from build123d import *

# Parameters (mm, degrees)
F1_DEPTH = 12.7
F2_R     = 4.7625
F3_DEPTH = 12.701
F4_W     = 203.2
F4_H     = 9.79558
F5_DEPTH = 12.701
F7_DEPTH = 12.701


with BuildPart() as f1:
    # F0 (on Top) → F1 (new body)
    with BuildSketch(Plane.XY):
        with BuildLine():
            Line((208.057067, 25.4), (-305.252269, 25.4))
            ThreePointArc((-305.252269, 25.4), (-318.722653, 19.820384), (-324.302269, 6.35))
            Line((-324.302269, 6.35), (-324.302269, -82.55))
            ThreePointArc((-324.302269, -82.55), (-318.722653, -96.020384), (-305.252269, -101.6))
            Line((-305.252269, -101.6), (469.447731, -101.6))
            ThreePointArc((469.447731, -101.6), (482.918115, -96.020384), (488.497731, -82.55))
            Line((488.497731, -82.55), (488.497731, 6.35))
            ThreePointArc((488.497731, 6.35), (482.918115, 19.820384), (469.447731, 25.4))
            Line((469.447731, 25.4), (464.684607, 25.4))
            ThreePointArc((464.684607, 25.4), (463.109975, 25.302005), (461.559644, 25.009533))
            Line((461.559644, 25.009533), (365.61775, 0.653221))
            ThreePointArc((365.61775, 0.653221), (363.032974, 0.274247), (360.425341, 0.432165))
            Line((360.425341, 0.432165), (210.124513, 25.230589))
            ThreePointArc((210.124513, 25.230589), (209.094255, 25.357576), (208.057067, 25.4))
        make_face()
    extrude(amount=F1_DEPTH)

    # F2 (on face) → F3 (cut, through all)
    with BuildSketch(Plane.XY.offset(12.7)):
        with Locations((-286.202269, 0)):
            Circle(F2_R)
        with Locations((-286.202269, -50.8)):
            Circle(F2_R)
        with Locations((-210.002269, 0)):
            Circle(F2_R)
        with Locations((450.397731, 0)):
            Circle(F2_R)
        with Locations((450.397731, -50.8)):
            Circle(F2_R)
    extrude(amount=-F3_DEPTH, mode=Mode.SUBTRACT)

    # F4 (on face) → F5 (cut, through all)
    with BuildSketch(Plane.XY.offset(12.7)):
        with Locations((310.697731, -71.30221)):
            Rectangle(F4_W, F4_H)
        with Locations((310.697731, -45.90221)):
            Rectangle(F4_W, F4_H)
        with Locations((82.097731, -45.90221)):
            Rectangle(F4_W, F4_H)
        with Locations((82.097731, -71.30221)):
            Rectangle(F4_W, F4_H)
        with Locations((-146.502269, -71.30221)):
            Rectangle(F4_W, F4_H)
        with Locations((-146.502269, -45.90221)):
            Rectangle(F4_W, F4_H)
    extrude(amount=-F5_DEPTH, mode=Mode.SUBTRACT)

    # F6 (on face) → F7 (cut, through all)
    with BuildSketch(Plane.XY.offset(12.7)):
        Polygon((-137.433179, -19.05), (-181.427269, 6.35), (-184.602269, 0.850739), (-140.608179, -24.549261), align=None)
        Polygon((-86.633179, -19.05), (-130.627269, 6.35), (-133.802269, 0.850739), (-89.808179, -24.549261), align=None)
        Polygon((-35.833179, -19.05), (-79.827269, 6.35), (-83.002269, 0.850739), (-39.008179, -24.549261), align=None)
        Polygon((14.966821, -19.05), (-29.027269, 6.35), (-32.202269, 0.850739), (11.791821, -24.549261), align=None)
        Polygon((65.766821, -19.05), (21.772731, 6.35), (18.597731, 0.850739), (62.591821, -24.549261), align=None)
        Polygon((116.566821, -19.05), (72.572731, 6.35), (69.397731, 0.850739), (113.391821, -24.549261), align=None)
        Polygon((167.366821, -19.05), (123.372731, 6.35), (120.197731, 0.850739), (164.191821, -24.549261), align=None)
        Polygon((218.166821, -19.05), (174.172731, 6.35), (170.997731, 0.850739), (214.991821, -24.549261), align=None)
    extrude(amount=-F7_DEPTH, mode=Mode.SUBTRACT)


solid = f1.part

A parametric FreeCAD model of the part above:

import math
import FreeCAD as App
import Part
import Sketcher
from FreeCAD import Vector
Q = App.Units.Quantity


def add_polygon(sketch, points):
    """Adds a closed chain of lines whose ends are joined by coincident constraints."""
    first, n = sketch.GeometryCount, len(points)
    for a, b in zip(points, points[1:] + points[:1]):
        sketch.addGeometry(Part.LineSegment(App.Vector(*a, 0), App.Vector(*b, 0)), False)
    for i in range(n):
        sketch.addConstraint(Sketcher.Constraint("Coincident", first + i, 2, first + (i + 1) % n, 1))

doc = App.newDocument("Part")
body = doc.addObject("PartDesign::Body", "Body")

sketch1 = doc.addObject("Sketcher::SketchObject", "Sketch")
body.addObject(sketch1)
sketch1.AttachmentSupport = (doc.XY_Plane, [""])
sketch1.MapMode = "FlatFace"
sketch1.addGeometry(Part.LineSegment(Vector(208.057067, 25.4, 0), Vector(-305.252269, 25.4, 0)), False)
sketch1.addGeometry(Part.ArcOfCircle(Part.Circle(Vector(-305.252268, 6.349999, 0), Vector(0, 0, 1), 19.050001), math.radians(90.000002), math.radians(179.999998)), False)
sketch1.addGeometry(Part.LineSegment(Vector(-324.302269, 6.35, 0), Vector(-324.302269, -82.55, 0)), False)
sketch1.addGeometry(Part.ArcOfCircle(Part.Circle(Vector(-305.252268, -82.549999, 0), Vector(0, 0, 1), 19.050001), math.radians(-179.999998), math.radians(-90.000002)), False)
sketch1.addGeometry(Part.LineSegment(Vector(-305.252269, -101.6, 0), Vector(469.447731, -101.6, 0)), False)
sketch1.addGeometry(Part.ArcOfCircle(Part.Circle(Vector(469.44773, -82.549999, 0), Vector(0, 0, 1), 19.050001), math.radians(-89.999998), math.radians(-0.000002)), False)
sketch1.addGeometry(Part.LineSegment(Vector(488.497731, -82.55, 0), Vector(488.497731, 6.35, 0)), False)
sketch1.addGeometry(Part.ArcOfCircle(Part.Circle(Vector(469.44773, 6.349999, 0), Vector(0, 0, 1), 19.050001), math.radians(0.000002), math.radians(89.999998)), False)
sketch1.addGeometry(Part.LineSegment(Vector(469.447731, 25.4, 0), Vector(464.684607, 25.4, 0)), False)
sketch1.addGeometry(Part.ArcOfCircle(Part.Circle(Vector(464.684609, 12.699989, 0), Vector(0, 0, 1), 12.700011), math.radians(90.000009), math.radians(104.244486)), False)
sketch1.addGeometry(Part.LineSegment(Vector(461.559644, 25.009533, 0), Vector(365.61775, 0.653221, 0)), False)
sketch1.addGeometry(Part.ArcOfCircle(Part.Circle(Vector(362.492789, 12.962723, 0), Vector(0, 0, 1), 12.699969), math.radians(-99.368965), math.radians(-75.755482)), False)
sketch1.addGeometry(Part.LineSegment(Vector(360.425341, 0.432165, 0), Vector(210.124513, 25.230589, 0)), False)
sketch1.addGeometry(Part.ArcOfCircle(Part.Circle(Vector(208.057058, 12.69991, 0), Vector(0, 0, 1), 12.70009), math.radians(80.631092), math.radians(89.99996)), False)
sketch1.addConstraint(Sketcher.Constraint("Coincident", 0, 2, 1, 1))
sketch1.addConstraint(Sketcher.Constraint("Coincident", 1, 2, 2, 1))
sketch1.addConstraint(Sketcher.Constraint("Coincident", 2, 2, 3, 1))
sketch1.addConstraint(Sketcher.Constraint("Coincident", 3, 2, 4, 1))
sketch1.addConstraint(Sketcher.Constraint("Coincident", 4, 2, 5, 1))
sketch1.addConstraint(Sketcher.Constraint("Coincident", 5, 2, 6, 1))
sketch1.addConstraint(Sketcher.Constraint("Coincident", 6, 2, 7, 1))
sketch1.addConstraint(Sketcher.Constraint("Coincident", 7, 2, 8, 1))
sketch1.addConstraint(Sketcher.Constraint("Coincident", 8, 2, 9, 1))
sketch1.addConstraint(Sketcher.Constraint("Coincident", 9, 2, 10, 1))
sketch1.addConstraint(Sketcher.Constraint("Coincident", 10, 2, 11, 2))
sketch1.addConstraint(Sketcher.Constraint("Coincident", 11, 1, 12, 1))
sketch1.addConstraint(Sketcher.Constraint("Coincident", 12, 2, 13, 1))
sketch1.addConstraint(Sketcher.Constraint("Coincident", 13, 2, 0, 1))
sketch1.addConstraint(Sketcher.Constraint("Horizontal", 0))
sketch1.addConstraint(Sketcher.Constraint("Vertical", 2))
sketch1.addConstraint(Sketcher.Constraint("Horizontal", 4))
sketch1.addConstraint(Sketcher.Constraint("Vertical", 6))
sketch1.addConstraint(Sketcher.Constraint("Horizontal", 8))
sketch1.addConstraint(Sketcher.Constraint("Radius", 1, Q("0.75 in")))
sketch1.addConstraint(Sketcher.Constraint("Radius", 3, Q("0.75 in")))
sketch1.addConstraint(Sketcher.Constraint("Radius", 5, Q("0.75 in")))
sketch1.addConstraint(Sketcher.Constraint("Radius", 7, Q("0.75 in")))
sketch1.addConstraint(Sketcher.Constraint("DistanceX", 4, 1, 4, 2, Q("30.5 in")))
sketch1.addConstraint(Sketcher.Constraint("DistanceY", 2, 2, 2, 1, Q("3.5 in")))
sketch1.addConstraint(Sketcher.Constraint("DistanceY", 6, 1, 6, 2, Q("3.5 in")))
sketch1.addConstraint(Sketcher.Constraint("DistanceY", -1, 1, 0, 2, Q("1 in")))
sketch1.addConstraint(Sketcher.Constraint("DistanceY", 3, 2, -1, 1, Q("4 in")))
sketch1.addConstraint(Sketcher.Constraint("DistanceY", -1, 1, 7, 2, Q("1 in")))
sketch1.addConstraint(Sketcher.Constraint("DistanceX", 3, 3, 5, 3, Q("30.5 in")))
sketch1.addConstraint(Sketcher.Constraint("DistanceY", 3, 3, 1, 2, Q("3.5 in")))
sketch1.addConstraint(Sketcher.Constraint("DistanceY", 5, 2, 7, 3, Q("3.5 in")))
sketch1.addConstraint(Sketcher.Constraint("DistanceX", 1, 2, 0, 2, Q("0.75 in")))
sketch1.addConstraint(Sketcher.Constraint("DistanceX", 2, 2, 3, 2, Q("0.75 in")))
sketch1.addConstraint(Sketcher.Constraint("DistanceX", 7, 2, 6, 2, Q("0.75 in")))
sketch1.addConstraint(Sketcher.Constraint("Radius", 9, 12.700011))
sketch1.addConstraint(Sketcher.Constraint("Radius", 11, 12.699969))
sketch1.addConstraint(Sketcher.Constraint("Radius", 13, 12.70009))
sketch1.addConstraint(Sketcher.Constraint("DistanceX", 11, 3, 9, 3, Q("4.0233 in")))
sketch1.addConstraint(Sketcher.Constraint("DistanceX", 11, 3, 8, 2, Q("4.0232999 in")))
sketch1.addConstraint(Sketcher.Constraint("DistanceY", 10, 2, 11, 3, 12.309502))
sketch1.addConstraint(Sketcher.Constraint("Distance", 12, 152.332862))
sketch1.addConstraint(Sketcher.Constraint("DistanceX", 0, 2, 0, 1, 513.309336))
sketch1.addConstraint(Sketcher.Constraint("DistanceX", 8, 2, 8, 1, 4.763124))
sketch1.addConstraint(Sketcher.Constraint("DistanceX", 1, 3, -1, 1, 305.252268))
sketch1.addConstraint(Sketcher.Constraint("DistanceX", -1, 1, 13, 3, 208.057058))
sketch1.addConstraint(Sketcher.Constraint("DistanceY", -1, 1, 10, 2, 0.653221))
sketch1.addConstraint(Sketcher.Constraint("DistanceX", -1, 1, 11, 1, 360.425341))
sketch1.addConstraint(Sketcher.Constraint("DistanceY", 10, 2, 9, 2, 24.356312))
pad1 = doc.addObject("PartDesign::Pad", "Pad")
body.addObject(pad1)
pad1.Profile = sketch1
pad1.Length = Q("0.5 in")

sketch2 = doc.addObject("Sketcher::SketchObject", "Sketch001")
body.addObject(sketch2)
sketch2.AttachmentSupport = (doc.XY_Plane, [""])
sketch2.MapMode = "FlatFace"
sketch2.AttachmentOffset = App.Placement(Vector(0, 0, 0.5 * 25.4), App.Rotation())
sketch2.addGeometry(Part.Circle(Vector(-286.2, 0, 0), Vector(0, 0, 1), 4.8), False)
sketch2.addGeometry(Part.Circle(Vector(-286.2, -50.8, 0), Vector(0, 0, 1), 4.8), False)
sketch2.addGeometry(Part.Circle(Vector(-210, 0, 0), Vector(0, 0, 1), 4.8), False)
sketch2.addGeometry(Part.Circle(Vector(450.4, 0, 0), Vector(0, 0, 1), 4.8), False)
sketch2.addGeometry(Part.Circle(Vector(450.4, -50.8, 0), Vector(0, 0, 1), 4.8), False)
sketch2.addConstraint(Sketcher.Constraint("Equal", 0, 1))
sketch2.addConstraint(Sketcher.Constraint("Equal", 1, 2))
sketch2.addConstraint(Sketcher.Constraint("Equal", 2, 3))
sketch2.addConstraint(Sketcher.Constraint("Equal", 3, 4))
sketch2.addConstraint(Sketcher.Constraint("PointOnObject", 0, 3, -1))
sketch2.addConstraint(Sketcher.Constraint("PointOnObject", 2, 3, -1))
sketch2.addConstraint(Sketcher.Constraint("PointOnObject", 3, 3, -1))
sketch2.addConstraint(Sketcher.Constraint("Horizontal", 1, 3, 4, 3))
sketch2.addConstraint(Sketcher.Constraint("Vertical", 0, 3, 1, 3))
sketch2.addConstraint(Sketcher.Constraint("Vertical", 3, 3, 4, 3))
sketch2.addConstraint(Sketcher.Constraint("Diameter", 0, Q("0.375 in")))
sketch2.addConstraint(Sketcher.Constraint("DistanceY", 1, 3, -1, 1, Q("2 in")))
sketch2.addConstraint(Sketcher.Constraint("DistanceX", 0, 3, 2, 3, Q("3 in")))
sketch2.addConstraint(Sketcher.Constraint("DistanceX", 2, 3, 3, 3, Q("26 in")))
sketch2.addConstraint(Sketcher.Constraint("DistanceX", 0, 3, -1, 1, 286.202269))
pocket1 = doc.addObject("PartDesign::Pocket", "Pocket")
body.addObject(pocket1)
pocket1.Profile = sketch2
pocket1.Type = "ThroughAll"

sketch3 = doc.addObject("Sketcher::SketchObject", "Sketch002")
body.addObject(sketch3)
sketch3.AttachmentSupport = (doc.XY_Plane, [""])
sketch3.MapMode = "FlatFace"
sketch3.AttachmentOffset = App.Placement(Vector(0, 0, 0.5 * 25.4), App.Rotation())
add_polygon(sketch3, [(209, -66), (209, -76), (412, -76), (412, -66)])
add_polygon(sketch3, [(209, -41), (209, -51), (412, -51), (412, -41)])
add_polygon(sketch3, [(-20, -41), (-20, -51), (184, -51), (184, -41)])
add_polygon(sketch3, [(-20, -66), (-20, -76), (184, -76), (184, -66)])
add_polygon(sketch3, [(-248, -66), (-248, -76), (-45, -76), (-45, -66)])
add_polygon(sketch3, [(-248, -41), (-248, -51), (-45, -51), (-45, -41)])
sketch3.addConstraint(Sketcher.Constraint("Vertical", 0))
sketch3.addConstraint(Sketcher.Constraint("Horizontal", 1))
sketch3.addConstraint(Sketcher.Constraint("Vertical", 2))
sketch3.addConstraint(Sketcher.Constraint("Horizontal", 3))
sketch3.addConstraint(Sketcher.Constraint("Vertical", 4))
sketch3.addConstraint(Sketcher.Constraint("Horizontal", 5))
sketch3.addConstraint(Sketcher.Constraint("Vertical", 6))
sketch3.addConstraint(Sketcher.Constraint("Horizontal", 7))
sketch3.addConstraint(Sketcher.Constraint("Vertical", 8))
sketch3.addConstraint(Sketcher.Constraint("Horizontal", 9))
sketch3.addConstraint(Sketcher.Constraint("Vertical", 10))
sketch3.addConstraint(Sketcher.Constraint("Horizontal", 11))
sketch3.addConstraint(Sketcher.Constraint("Vertical", 12))
sketch3.addConstraint(Sketcher.Constraint("Horizontal", 13))
sketch3.addConstraint(Sketcher.Constraint("Vertical", 14))
sketch3.addConstraint(Sketcher.Constraint("Horizontal", 15))
sketch3.addConstraint(Sketcher.Constraint("Vertical", 16))
sketch3.addConstraint(Sketcher.Constraint("Horizontal", 17))
sketch3.addConstraint(Sketcher.Constraint("Vertical", 18))
sketch3.addConstraint(Sketcher.Constraint("Horizontal", 19))
sketch3.addConstraint(Sketcher.Constraint("Vertical", 20))
sketch3.addConstraint(Sketcher.Constraint("Horizontal", 21))
sketch3.addConstraint(Sketcher.Constraint("Vertical", 22))
sketch3.addConstraint(Sketcher.Constraint("Horizontal", 23))
sketch3.addConstraint(Sketcher.Constraint("Horizontal", 5, 2, 8, 2))
sketch3.addConstraint(Sketcher.Constraint("Horizontal", 7, 2, 10, 2))
sketch3.addConstraint(Sketcher.Constraint("Horizontal", 1, 2, 12, 2))
sketch3.addConstraint(Sketcher.Constraint("Horizontal", 3, 2, 14, 2))
sketch3.addConstraint(Sketcher.Constraint("Horizontal", 13, 2, 16, 2))
sketch3.addConstraint(Sketcher.Constraint("Horizontal", 15, 2, 18, 2))
sketch3.addConstraint(Sketcher.Constraint("Horizontal", 9, 2, 20, 2))
sketch3.addConstraint(Sketcher.Constraint("Horizontal", 11, 2, 22, 2))
sketch3.addConstraint(Sketcher.Constraint("Vertical", 3, 2, 4, 2))
sketch3.addConstraint(Sketcher.Constraint("Vertical", 2, 2, 5, 2))
sketch3.addConstraint(Sketcher.Constraint("Vertical", 11, 2, 12, 2))
sketch3.addConstraint(Sketcher.Constraint("Vertical", 10, 2, 13, 2))
sketch3.addConstraint(Sketcher.Constraint("Vertical", 19, 2, 20, 2))
sketch3.addConstraint(Sketcher.Constraint("Vertical", 18, 2, 21, 2))
sketch3.addConstraint(Sketcher.Constraint("Equal", 7, 9))
sketch3.addConstraint(Sketcher.Constraint("Equal", 15, 17))
sketch3.addConstraint(Sketcher.Constraint("Equal", 2, 4))
sketch3.addConstraint(Sketcher.Constraint("DistanceX", 1, 1, 1, 2, Q("8 in")))
sketch3.addConstraint(Sketcher.Constraint("DistanceY", 0, 2, -1, 1, Q("3 in")))
sketch3.addConstraint(Sketcher.Constraint("DistanceY", 4, 2, -1, 1, Q("2 in")))
sketch3.addConstraint(Sketcher.Constraint("DistanceX", 8, 2, 4, 2, Q("9 in")))
sketch3.addConstraint(Sketcher.Constraint("DistanceX", 16, 2, 12, 2, Q("9 in")))
sketch3.addConstraint(Sketcher.Constraint("DistanceY", 0, 2, 0, 1, 9.79558))
sketch3.addConstraint(Sketcher.Constraint("DistanceX", -1, 1, 0, 2, 209.097731))
pocket2 = doc.addObject("PartDesign::Pocket", "Pocket001")
body.addObject(pocket2)
pocket2.Profile = sketch3
pocket2.Type = "ThroughAll"

sketch4 = doc.addObject("Sketcher::SketchObject", "Sketch003")
body.addObject(sketch4)
sketch4.AttachmentSupport = (doc.XY_Plane, [""])
sketch4.MapMode = "FlatFace"
sketch4.AttachmentOffset = App.Placement(Vector(0, 0, 0.5 * 25.4), App.Rotation())
add_polygon(sketch4, [(-137, -19), (-181, 6), (-185, 1), (-141, -25)])
add_polygon(sketch4, [(-87, -19), (-131, 6), (-134, 1), (-90, -25)])
add_polygon(sketch4, [(-36, -19), (-80, 6), (-83, 1), (-39, -25)])
add_polygon(sketch4, [(15, -19), (-29, 6), (-32, 1), (12, -25)])
add_polygon(sketch4, [(66, -19), (22, 6), (19, 1), (63, -25)])
add_polygon(sketch4, [(117, -19), (73, 6), (69, 1), (113, -25)])
add_polygon(sketch4, [(167, -19), (123, 6), (120, 1), (164, -25)])
add_polygon(sketch4, [(218, -19), (174, 6), (171, 1), (215, -25)])
sketch4.addConstraint(Sketcher.Constraint("Perpendicular", 0, 1))
sketch4.addConstraint(Sketcher.Constraint("Perpendicular", 1, 2))
sketch4.addConstraint(Sketcher.Constraint("Perpendicular", 2, 3))
sketch4.addConstraint(Sketcher.Constraint("Perpendicular", 3, 4))
sketch4.addConstraint(Sketcher.Constraint("Perpendicular", 4, 5))
sketch4.addConstraint(Sketcher.Constraint("Perpendicular", 5, 6))
sketch4.addConstraint(Sketcher.Constraint("Perpendicular", 6, 7))
sketch4.addConstraint(Sketcher.Constraint("Perpendicular", 7, 8))
sketch4.addConstraint(Sketcher.Constraint("Perpendicular", 8, 9))
sketch4.addConstraint(Sketcher.Constraint("Perpendicular", 9, 10))
sketch4.addConstraint(Sketcher.Constraint("Perpendicular", 10, 11))
sketch4.addConstraint(Sketcher.Constraint("Perpendicular", 11, 12))
sketch4.addConstraint(Sketcher.Constraint("Perpendicular", 12, 13))
sketch4.addConstraint(Sketcher.Constraint("Perpendicular", 13, 14))
sketch4.addConstraint(Sketcher.Constraint("Perpendicular", 14, 15))
sketch4.addConstraint(Sketcher.Constraint("Perpendicular", 15, 16))
sketch4.addConstraint(Sketcher.Constraint("Perpendicular", 16, 17))
sketch4.addConstraint(Sketcher.Constraint("Perpendicular", 17, 18))
sketch4.addConstraint(Sketcher.Constraint("Perpendicular", 18, 19))
sketch4.addConstraint(Sketcher.Constraint("Perpendicular", 19, 20))
sketch4.addConstraint(Sketcher.Constraint("Perpendicular", 20, 21))
sketch4.addConstraint(Sketcher.Constraint("Perpendicular", 21, 22))
sketch4.addConstraint(Sketcher.Constraint("Perpendicular", 22, 23))
sketch4.addConstraint(Sketcher.Constraint("Perpendicular", 23, 24))
sketch4.addConstraint(Sketcher.Constraint("Perpendicular", 24, 25))
sketch4.addConstraint(Sketcher.Constraint("Perpendicular", 25, 26))
sketch4.addConstraint(Sketcher.Constraint("Perpendicular", 26, 27))
sketch4.addConstraint(Sketcher.Constraint("Perpendicular", 27, 28))
sketch4.addConstraint(Sketcher.Constraint("Perpendicular", 28, 29))
sketch4.addConstraint(Sketcher.Constraint("Perpendicular", 29, 30))
sketch4.addConstraint(Sketcher.Constraint("Perpendicular", 30, 31))
sketch4.addConstraint(Sketcher.Constraint("Horizontal", 0, 2, 4, 2))
sketch4.addConstraint(Sketcher.Constraint("Horizontal", 1, 2, 5, 2))
sketch4.addConstraint(Sketcher.Constraint("Horizontal", 2, 2, 6, 2))
sketch4.addConstraint(Sketcher.Constraint("Horizontal", 4, 2, 8, 2))
sketch4.addConstraint(Sketcher.Constraint("Horizontal", 5, 2, 9, 2))
sketch4.addConstraint(Sketcher.Constraint("Horizontal", 6, 2, 10, 2))
sketch4.addConstraint(Sketcher.Constraint("Horizontal", 8, 2, 12, 2))
sketch4.addConstraint(Sketcher.Constraint("Horizontal", 9, 2, 13, 2))
sketch4.addConstraint(Sketcher.Constraint("Horizontal", 10, 2, 14, 2))
sketch4.addConstraint(Sketcher.Constraint("Horizontal", 12, 2, 16, 2))
sketch4.addConstraint(Sketcher.Constraint("Horizontal", 13, 2, 17, 2))
sketch4.addConstraint(Sketcher.Constraint("Horizontal", 14, 2, 18, 2))
sketch4.addConstraint(Sketcher.Constraint("Horizontal", 16, 2, 20, 2))
sketch4.addConstraint(Sketcher.Constraint("Horizontal", 17, 2, 21, 2))
sketch4.addConstraint(Sketcher.Constraint("Horizontal", 18, 2, 22, 2))
sketch4.addConstraint(Sketcher.Constraint("Horizontal", 20, 2, 24, 2))
sketch4.addConstraint(Sketcher.Constraint("Horizontal", 21, 2, 25, 2))
sketch4.addConstraint(Sketcher.Constraint("Horizontal", 22, 2, 26, 2))
sketch4.addConstraint(Sketcher.Constraint("Horizontal", 24, 2, 28, 2))
sketch4.addConstraint(Sketcher.Constraint("Horizontal", 25, 2, 29, 2))
sketch4.addConstraint(Sketcher.Constraint("Horizontal", 26, 2, 30, 2))
sketch4.addConstraint(Sketcher.Constraint("Distance", 0, Q("2 in")))
sketch4.addConstraint(Sketcher.Constraint("Angle", 0, Q("150 deg")))
sketch4.addConstraint(Sketcher.Constraint("DistanceX", 0, 2, 4, 2, Q("2 in")))
sketch4.addConstraint(Sketcher.Constraint("DistanceX", 4, 2, 8, 2, Q("2 in")))
sketch4.addConstraint(Sketcher.Constraint("DistanceX", 8, 2, 12, 2, Q("2 in")))
sketch4.addConstraint(Sketcher.Constraint("DistanceX", 12, 2, 16, 2, Q("2 in")))
sketch4.addConstraint(Sketcher.Constraint("DistanceX", 16, 2, 20, 2, Q("2 in")))
sketch4.addConstraint(Sketcher.Constraint("DistanceX", 20, 2, 24, 2, Q("2 in")))
sketch4.addConstraint(Sketcher.Constraint("DistanceX", 24, 2, 28, 2, Q("2 in")))
sketch4.addConstraint(Sketcher.Constraint("Distance", 1, Q("0.25 in")))
sketch4.addConstraint(Sketcher.Constraint("DistanceY", -1, 1, 0, 2, Q("0.25 in")))
sketch4.addConstraint(Sketcher.Constraint("DistanceX", 0, 2, -1, 1, 181.427269))
pocket3 = doc.addObject("PartDesign::Pocket", "Pocket002")
body.addObject(pocket3)
pocket3.Profile = sketch4
pocket3.Type = "ThroughAll"

doc.recompute()
